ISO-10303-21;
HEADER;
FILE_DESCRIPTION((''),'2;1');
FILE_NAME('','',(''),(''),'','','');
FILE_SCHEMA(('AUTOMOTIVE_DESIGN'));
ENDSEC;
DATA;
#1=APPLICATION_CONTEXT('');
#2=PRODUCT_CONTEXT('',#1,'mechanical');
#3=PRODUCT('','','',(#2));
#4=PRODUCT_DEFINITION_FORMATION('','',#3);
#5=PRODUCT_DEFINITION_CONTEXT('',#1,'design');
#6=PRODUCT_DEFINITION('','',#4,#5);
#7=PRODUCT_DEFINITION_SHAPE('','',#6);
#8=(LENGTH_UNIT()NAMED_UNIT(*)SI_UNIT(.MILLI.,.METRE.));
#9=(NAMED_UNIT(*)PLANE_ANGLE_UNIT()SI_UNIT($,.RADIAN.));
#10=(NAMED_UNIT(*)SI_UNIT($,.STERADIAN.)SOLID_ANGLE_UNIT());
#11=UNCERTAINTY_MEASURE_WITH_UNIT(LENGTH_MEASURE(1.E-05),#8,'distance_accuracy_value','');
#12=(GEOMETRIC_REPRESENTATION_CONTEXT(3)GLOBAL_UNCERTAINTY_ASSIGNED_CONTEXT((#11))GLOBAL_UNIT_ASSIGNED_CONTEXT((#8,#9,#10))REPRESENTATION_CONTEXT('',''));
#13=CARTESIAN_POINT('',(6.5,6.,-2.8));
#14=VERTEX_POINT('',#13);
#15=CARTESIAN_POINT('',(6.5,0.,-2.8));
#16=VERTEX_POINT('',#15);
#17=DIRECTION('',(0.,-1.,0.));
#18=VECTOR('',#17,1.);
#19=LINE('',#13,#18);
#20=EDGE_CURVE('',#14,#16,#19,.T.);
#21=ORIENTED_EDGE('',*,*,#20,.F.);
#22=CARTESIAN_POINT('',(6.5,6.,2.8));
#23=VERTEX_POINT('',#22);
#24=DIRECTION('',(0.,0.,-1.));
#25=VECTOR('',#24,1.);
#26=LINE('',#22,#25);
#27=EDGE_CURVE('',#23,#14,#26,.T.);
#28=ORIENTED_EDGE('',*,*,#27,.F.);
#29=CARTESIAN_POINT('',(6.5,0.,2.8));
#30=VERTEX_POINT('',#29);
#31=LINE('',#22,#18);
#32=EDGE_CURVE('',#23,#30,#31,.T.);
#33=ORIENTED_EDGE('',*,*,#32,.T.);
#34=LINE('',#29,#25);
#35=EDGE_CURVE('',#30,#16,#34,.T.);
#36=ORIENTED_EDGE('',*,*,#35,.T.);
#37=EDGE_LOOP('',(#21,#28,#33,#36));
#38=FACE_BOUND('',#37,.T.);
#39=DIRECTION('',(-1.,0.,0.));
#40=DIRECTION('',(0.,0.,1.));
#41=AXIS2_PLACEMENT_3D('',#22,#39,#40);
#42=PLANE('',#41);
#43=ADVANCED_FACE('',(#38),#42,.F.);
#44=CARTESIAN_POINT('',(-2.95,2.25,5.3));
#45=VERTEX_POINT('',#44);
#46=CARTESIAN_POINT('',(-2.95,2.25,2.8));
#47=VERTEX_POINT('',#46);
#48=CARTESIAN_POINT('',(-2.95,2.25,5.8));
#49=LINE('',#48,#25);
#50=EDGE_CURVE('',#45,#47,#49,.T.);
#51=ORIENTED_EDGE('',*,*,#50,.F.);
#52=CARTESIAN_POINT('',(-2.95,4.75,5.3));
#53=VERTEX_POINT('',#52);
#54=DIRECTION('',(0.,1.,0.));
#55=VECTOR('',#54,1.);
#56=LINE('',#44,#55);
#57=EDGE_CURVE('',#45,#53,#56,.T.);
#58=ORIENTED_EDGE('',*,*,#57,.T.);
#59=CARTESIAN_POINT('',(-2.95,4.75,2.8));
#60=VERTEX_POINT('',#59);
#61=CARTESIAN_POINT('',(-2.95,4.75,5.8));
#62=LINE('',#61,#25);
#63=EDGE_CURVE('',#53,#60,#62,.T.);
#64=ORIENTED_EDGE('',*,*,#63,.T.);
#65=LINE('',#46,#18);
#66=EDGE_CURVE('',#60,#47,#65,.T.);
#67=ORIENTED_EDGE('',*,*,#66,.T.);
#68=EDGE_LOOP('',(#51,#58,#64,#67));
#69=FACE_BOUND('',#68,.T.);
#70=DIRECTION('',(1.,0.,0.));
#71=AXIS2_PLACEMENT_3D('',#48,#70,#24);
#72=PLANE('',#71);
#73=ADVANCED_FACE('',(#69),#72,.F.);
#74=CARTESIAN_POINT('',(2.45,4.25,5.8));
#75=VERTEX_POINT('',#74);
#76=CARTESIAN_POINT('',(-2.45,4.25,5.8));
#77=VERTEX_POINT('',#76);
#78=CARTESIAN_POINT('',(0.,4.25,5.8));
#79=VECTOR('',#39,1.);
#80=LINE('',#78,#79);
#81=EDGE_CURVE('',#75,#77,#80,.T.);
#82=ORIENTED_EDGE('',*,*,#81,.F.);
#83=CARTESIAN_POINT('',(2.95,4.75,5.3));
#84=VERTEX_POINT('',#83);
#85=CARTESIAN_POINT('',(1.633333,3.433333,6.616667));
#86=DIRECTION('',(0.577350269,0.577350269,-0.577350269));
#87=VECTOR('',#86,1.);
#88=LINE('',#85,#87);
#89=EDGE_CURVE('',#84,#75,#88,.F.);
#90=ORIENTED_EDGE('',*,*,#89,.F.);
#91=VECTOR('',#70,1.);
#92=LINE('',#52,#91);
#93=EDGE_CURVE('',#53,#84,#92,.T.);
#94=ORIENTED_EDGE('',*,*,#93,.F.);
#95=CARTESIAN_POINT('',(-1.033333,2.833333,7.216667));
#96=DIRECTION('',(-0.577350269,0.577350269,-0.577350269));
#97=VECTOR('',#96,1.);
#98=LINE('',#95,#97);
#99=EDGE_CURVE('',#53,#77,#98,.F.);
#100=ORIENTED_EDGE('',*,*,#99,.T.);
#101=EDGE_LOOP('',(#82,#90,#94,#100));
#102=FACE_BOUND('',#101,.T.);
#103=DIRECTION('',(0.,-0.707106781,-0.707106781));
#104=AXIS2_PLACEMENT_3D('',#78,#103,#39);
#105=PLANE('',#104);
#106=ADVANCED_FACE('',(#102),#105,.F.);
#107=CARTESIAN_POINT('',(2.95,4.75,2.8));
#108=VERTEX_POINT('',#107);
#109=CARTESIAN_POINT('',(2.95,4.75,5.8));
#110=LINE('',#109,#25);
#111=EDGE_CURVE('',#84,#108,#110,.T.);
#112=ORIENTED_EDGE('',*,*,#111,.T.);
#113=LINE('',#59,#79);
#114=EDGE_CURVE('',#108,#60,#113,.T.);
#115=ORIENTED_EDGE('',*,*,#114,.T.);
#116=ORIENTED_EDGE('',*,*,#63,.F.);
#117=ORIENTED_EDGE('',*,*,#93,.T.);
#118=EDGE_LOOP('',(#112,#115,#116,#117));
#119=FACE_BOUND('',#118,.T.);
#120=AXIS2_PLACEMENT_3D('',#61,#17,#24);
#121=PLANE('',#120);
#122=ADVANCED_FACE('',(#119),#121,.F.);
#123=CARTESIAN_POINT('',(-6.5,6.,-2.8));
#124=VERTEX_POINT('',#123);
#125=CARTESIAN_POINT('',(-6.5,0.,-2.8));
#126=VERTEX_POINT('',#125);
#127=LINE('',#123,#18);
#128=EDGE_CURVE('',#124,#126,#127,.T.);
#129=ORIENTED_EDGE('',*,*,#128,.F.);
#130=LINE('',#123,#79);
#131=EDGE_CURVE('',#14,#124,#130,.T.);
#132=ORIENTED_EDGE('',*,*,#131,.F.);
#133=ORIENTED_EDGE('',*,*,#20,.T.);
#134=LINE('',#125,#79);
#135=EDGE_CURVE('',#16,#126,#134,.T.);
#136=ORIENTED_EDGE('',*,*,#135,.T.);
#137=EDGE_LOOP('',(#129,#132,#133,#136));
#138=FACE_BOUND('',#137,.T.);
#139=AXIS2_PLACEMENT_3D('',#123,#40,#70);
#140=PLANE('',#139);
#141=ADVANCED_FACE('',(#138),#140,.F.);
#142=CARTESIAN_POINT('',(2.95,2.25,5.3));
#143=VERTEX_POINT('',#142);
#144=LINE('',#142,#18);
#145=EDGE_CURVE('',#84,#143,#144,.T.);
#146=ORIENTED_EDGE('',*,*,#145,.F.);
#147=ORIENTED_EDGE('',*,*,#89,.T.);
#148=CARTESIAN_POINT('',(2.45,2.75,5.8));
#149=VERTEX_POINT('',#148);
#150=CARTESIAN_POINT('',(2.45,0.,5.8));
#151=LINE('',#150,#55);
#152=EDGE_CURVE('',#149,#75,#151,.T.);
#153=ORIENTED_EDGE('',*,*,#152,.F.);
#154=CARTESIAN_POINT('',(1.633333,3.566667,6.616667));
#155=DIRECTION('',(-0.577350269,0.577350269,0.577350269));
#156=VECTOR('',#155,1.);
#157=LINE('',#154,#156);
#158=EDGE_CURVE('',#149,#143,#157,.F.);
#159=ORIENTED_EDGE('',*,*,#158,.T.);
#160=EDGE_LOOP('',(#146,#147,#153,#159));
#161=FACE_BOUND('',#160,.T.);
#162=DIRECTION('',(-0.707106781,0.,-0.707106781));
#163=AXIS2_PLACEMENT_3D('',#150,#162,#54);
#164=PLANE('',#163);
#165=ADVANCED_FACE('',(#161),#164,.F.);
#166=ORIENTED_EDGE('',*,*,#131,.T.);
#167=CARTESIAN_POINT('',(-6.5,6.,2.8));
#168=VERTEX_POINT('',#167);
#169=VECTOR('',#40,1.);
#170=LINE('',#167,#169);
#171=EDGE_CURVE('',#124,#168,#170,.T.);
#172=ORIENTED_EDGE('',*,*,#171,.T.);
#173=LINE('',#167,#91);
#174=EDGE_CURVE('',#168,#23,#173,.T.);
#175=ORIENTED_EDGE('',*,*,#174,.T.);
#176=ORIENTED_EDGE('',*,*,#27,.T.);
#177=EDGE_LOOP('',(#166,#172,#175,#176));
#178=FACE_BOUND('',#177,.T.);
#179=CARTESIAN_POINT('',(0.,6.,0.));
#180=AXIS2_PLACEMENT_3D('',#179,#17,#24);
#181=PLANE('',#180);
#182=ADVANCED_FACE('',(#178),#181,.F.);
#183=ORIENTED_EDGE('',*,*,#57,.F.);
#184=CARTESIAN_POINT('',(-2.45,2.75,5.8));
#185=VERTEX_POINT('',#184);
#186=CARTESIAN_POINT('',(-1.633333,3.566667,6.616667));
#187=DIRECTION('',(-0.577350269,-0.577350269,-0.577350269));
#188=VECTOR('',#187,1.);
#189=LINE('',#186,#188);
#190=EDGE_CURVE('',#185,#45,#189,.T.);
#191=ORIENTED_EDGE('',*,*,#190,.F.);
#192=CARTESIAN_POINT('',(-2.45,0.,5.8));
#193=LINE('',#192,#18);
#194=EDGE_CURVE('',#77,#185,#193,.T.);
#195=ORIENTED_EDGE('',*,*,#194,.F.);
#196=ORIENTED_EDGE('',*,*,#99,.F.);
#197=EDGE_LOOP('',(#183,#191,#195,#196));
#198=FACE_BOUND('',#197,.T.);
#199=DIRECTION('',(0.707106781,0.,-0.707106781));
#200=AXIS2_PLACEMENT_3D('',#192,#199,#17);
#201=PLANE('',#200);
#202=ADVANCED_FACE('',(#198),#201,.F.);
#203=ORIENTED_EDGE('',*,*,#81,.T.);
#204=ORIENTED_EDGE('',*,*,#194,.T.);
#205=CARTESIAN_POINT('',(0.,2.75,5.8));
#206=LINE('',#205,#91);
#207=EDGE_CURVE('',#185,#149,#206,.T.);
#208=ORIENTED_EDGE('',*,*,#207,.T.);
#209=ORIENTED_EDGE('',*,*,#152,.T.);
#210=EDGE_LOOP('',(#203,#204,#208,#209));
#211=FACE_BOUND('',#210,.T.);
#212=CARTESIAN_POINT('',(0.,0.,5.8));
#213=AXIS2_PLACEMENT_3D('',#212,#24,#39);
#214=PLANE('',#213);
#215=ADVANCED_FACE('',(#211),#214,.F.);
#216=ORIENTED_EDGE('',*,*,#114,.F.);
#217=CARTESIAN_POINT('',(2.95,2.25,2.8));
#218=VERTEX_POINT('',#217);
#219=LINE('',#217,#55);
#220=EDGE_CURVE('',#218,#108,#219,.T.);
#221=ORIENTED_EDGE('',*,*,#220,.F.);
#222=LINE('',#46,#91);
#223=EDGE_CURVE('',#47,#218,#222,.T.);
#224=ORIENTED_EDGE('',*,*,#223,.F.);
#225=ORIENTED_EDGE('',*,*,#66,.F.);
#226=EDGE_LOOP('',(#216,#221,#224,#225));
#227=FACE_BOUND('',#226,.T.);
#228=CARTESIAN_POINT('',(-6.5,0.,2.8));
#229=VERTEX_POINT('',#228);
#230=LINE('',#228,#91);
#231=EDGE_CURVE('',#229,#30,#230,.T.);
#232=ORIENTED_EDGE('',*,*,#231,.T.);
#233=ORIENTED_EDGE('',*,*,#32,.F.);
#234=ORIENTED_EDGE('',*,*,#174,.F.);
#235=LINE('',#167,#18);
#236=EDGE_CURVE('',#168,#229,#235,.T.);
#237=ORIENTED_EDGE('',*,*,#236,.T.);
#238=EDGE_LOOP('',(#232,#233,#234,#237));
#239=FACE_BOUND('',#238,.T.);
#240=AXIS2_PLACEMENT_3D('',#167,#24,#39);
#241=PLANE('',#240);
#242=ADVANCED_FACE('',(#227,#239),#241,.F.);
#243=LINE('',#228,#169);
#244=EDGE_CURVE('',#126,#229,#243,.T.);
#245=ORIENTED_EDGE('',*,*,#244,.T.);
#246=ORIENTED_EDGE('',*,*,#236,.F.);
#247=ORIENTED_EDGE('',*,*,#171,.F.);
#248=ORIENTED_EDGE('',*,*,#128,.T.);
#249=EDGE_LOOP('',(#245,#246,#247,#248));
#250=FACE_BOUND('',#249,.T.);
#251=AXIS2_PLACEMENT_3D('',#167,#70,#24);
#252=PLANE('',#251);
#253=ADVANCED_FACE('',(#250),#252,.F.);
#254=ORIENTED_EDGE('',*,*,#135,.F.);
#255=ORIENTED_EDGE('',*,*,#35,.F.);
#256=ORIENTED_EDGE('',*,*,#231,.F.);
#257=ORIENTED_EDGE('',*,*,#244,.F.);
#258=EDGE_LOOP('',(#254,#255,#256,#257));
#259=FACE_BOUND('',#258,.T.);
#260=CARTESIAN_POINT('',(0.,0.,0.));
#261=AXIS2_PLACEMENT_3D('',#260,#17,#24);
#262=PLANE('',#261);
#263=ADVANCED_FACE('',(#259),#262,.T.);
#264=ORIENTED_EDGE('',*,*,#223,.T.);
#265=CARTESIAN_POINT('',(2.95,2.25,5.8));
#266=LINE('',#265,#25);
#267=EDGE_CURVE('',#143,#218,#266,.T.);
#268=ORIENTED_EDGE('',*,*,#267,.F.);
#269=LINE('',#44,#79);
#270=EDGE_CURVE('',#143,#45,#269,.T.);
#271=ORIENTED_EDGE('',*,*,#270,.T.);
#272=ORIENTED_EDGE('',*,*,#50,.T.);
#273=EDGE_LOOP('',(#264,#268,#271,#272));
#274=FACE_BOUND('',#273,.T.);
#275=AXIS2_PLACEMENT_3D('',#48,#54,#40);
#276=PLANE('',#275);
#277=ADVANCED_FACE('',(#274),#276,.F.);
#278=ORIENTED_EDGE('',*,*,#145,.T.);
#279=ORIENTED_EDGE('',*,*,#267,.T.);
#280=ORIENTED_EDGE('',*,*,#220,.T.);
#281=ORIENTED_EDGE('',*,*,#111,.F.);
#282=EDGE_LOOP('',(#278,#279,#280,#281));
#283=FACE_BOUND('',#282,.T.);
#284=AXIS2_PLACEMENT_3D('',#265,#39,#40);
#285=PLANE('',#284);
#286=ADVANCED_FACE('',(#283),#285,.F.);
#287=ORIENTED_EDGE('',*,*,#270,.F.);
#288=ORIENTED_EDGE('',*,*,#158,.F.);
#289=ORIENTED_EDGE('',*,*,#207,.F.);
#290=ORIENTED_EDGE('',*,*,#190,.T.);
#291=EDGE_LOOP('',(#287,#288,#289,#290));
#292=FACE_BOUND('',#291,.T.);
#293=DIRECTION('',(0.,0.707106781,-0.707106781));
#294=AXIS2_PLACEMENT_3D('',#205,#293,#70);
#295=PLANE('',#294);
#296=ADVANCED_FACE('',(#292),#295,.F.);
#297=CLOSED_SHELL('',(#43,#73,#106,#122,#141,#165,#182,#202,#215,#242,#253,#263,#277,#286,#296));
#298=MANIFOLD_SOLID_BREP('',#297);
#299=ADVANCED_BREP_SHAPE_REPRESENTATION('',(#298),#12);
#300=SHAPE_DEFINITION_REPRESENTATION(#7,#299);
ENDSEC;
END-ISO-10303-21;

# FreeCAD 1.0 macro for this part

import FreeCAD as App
import Part
import Sketcher
Q = App.Units.Quantity


def edges_at(feature, points):
    """Names of the edges that pass closest to the given points."""
    edges = feature.Shape.Edges
    near = lambda p: min(range(len(edges)), key=lambda i: edges[i].distToShape(Part.Vertex(*p))[0])
    return sorted({f"Edge{near(p) + 1}" for p in points})


def add_polygon(sketch, points):
    """Adds a closed chain of lines whose ends are joined by coincident constraints."""
    first, n = sketch.GeometryCount, len(points)
    for a, b in zip(points, points[1:] + points[:1]):
        sketch.addGeometry(Part.LineSegment(App.Vector(*a, 0), App.Vector(*b, 0)), False)
    for i in range(n):
        sketch.addConstraint(Sketcher.Constraint("Coincident", first + i, 2, first + (i + 1) % n, 1))

doc = App.newDocument("Part")
body = doc.addObject("PartDesign::Body", "Body")

# Sketch on XZ plane
sketch1 = doc.addObject("Sketcher::SketchObject", "Sketch")
body.addObject(sketch1)
sketch1.AttachmentSupport = (doc.XZ_Plane, [""])
sketch1.MapMode = "FlatFace"
add_polygon(sketch1, [(-6, -3), (-6, 3), (6, 3), (6, -3)])  # lines 0-3
sketch1.addConstraint([
    Sketcher.Constraint("Vertical", 0),
    Sketcher.Constraint("Horizontal", 1),
    Sketcher.Constraint("Vertical", 2),
    Sketcher.Constraint("Horizontal", 3),
    Sketcher.Constraint("Symmetric", 0, 2, 2, 2, -1, 1),
    Sketcher.Constraint("DistanceX", 1, 1, 1, 2, Q("13 mm")),
    Sketcher.Constraint("DistanceY", 0, 1, 0, 2, Q("5.6 mm")),
])
pad1 = doc.addObject("PartDesign::Pad", "Pad")
body.addObject(pad1)
pad1.Profile = sketch1
pad1.Length = 6
pad1.Reversed = True

# Sketch on XY plane
sketch2 = doc.addObject("Sketcher::SketchObject", "Sketch001")
body.addObject(sketch2)
sketch2.AttachmentSupport = (doc.XY_Plane, [""])
sketch2.MapMode = "FlatFace"
sketch2.AttachmentOffset = App.Placement(App.Vector(0, 0, 2.8), App.Rotation())
add_polygon(sketch2, [(-3, 4.8), (-3, 2.2), (3, 2.2), (3, 4.8)])  # lines 0-3
sketch2.addConstraint([
    Sketcher.Constraint("Vertical", 0),
    Sketcher.Constraint("Horizontal", 1),
    Sketcher.Constraint("Vertical", 2),
    Sketcher.Constraint("Horizontal", 3),
    Sketcher.Constraint("DistanceX", 1, 1, 1, 2, Q("5.9 mm")),
    Sketcher.Constraint("DistanceY", 0, 2, 0, 1, Q("2.5 mm")),
    Sketcher.Constraint("DistanceX", 0, 2, -1, 1, Q("2.95 mm")),
    Sketcher.Constraint("DistanceY", -1, 1, 0, 2, Q("2.25 mm")),
])
pad2 = doc.addObject("PartDesign::Pad", "Pad001")
body.addObject(pad2)
pad2.Profile = sketch2
pad2.Length = 3
doc.recompute()

chamfer = doc.addObject("PartDesign::Chamfer", "Chamfer")
body.addObject(chamfer)
chamfer.Base = (pad2, edges_at(pad2, [
    (2.95, 3.5, 5.8),
    (0, 4.75, 5.8),
    (-2.95, 3.5, 5.8),
    (0, 2.25, 5.8),
]))
chamfer.Size = 0.5

doc.recompute()
